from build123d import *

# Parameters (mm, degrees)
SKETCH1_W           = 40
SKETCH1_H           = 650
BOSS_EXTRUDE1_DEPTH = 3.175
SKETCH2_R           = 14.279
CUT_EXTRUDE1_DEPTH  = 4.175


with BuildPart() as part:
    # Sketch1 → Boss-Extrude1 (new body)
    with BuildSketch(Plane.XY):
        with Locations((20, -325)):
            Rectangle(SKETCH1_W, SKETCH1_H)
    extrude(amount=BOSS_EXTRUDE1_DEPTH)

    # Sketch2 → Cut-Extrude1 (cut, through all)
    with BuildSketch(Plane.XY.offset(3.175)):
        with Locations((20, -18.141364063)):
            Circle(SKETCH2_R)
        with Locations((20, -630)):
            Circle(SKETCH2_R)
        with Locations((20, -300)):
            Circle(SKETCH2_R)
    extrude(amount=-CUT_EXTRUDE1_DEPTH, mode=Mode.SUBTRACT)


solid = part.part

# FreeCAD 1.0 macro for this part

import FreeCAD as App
import Part
import Sketcher

V = App.Vector


def add_polygon(sketch, points):
    """Adds a closed chain of lines whose ends are joined by coincident constraints."""
    first, n = sketch.GeometryCount, len(points)
    for a, b in zip(points, points[1:] + points[:1]):
        sketch.addGeometry(Part.LineSegment(App.Vector(*a, 0), App.Vector(*b, 0)), False)
    for i in range(n):
        sketch.addConstraint(Sketcher.Constraint("Coincident", first + i, 2, first + (i + 1) % n, 1))

doc = App.newDocument("Part")
body = doc.addObject("PartDesign::Body", "Body")

sketch1 = doc.addObject("Sketcher::SketchObject", "Sketch")
body.addObject(sketch1)
sketch1.AttachmentSupport = (doc.XY_Plane, [""])
sketch1.MapMode = "FlatFace"
add_polygon(sketch1, [(0, 0), (0, -650), (40, -650), (40, 0)])
sketch1.addConstraint([
    Sketcher.Constraint("Vertical", 0),
    Sketcher.Constraint("Horizontal", 1),
    Sketcher.Constraint("Vertical", 2),
    Sketcher.Constraint("Horizontal", 3),
    Sketcher.Constraint("Coincident", 3, 2, -1, 1),
    Sketcher.Constraint("DistanceX", 1, 1, 1, 2, 40.0),
    Sketcher.Constraint("DistanceY", 0, 2, 0, 1, 650.0),
])
pad1 = doc.addObject("PartDesign::Pad", "Pad")
body.addObject(pad1)
pad1.Profile = sketch1
pad1.Length = 3.175

sketch2 = doc.addObject("Sketcher::SketchObject", "Sketch001")
body.addObject(sketch2)
sketch2.AttachmentSupport = (doc.XY_Plane, [""])
sketch2.MapMode = "FlatFace"
sketch2.AttachmentOffset = App.Placement(V(0, 0, 3.175), App.Rotation())
sketch2.addGeometry([
    Part.Circle(V(20, -18, 0), V(0, 0, 1), 14),
    Part.Circle(V(20, -630, 0), V(0, 0, 1), 14),
    Part.Circle(V(20, -300, 0), V(0, 0, 1), 14),
], False)
sketch2.addConstraint([
    Sketcher.Constraint("Equal", 0, 1),
    Sketcher.Constraint("Equal", 1, 2),
    Sketcher.Constraint("Vertical", 0, 3, 1, 3),
    Sketcher.Constraint("Vertical", 1, 3, 2, 3),
    Sketcher.Constraint("Diameter", 0, 28.558),
    Sketcher.Constraint("DistanceX", -1, 1, 0, 3, 20.0),
    Sketcher.Constraint("DistanceY", 1, 3, -1, 1, 630.0),
    Sketcher.Constraint("DistanceY", 2, 3, -1, 1, 300.0),
    Sketcher.Constraint("DistanceY", 0, 3, -1, 1, 18.141364),
])
pocket1 = doc.addObject("PartDesign::Pocket", "Pocket")
body.addObject(pocket1)
pocket1.Profile = sketch2
pocket1.Type = "ThroughAll"

doc.recompute()
